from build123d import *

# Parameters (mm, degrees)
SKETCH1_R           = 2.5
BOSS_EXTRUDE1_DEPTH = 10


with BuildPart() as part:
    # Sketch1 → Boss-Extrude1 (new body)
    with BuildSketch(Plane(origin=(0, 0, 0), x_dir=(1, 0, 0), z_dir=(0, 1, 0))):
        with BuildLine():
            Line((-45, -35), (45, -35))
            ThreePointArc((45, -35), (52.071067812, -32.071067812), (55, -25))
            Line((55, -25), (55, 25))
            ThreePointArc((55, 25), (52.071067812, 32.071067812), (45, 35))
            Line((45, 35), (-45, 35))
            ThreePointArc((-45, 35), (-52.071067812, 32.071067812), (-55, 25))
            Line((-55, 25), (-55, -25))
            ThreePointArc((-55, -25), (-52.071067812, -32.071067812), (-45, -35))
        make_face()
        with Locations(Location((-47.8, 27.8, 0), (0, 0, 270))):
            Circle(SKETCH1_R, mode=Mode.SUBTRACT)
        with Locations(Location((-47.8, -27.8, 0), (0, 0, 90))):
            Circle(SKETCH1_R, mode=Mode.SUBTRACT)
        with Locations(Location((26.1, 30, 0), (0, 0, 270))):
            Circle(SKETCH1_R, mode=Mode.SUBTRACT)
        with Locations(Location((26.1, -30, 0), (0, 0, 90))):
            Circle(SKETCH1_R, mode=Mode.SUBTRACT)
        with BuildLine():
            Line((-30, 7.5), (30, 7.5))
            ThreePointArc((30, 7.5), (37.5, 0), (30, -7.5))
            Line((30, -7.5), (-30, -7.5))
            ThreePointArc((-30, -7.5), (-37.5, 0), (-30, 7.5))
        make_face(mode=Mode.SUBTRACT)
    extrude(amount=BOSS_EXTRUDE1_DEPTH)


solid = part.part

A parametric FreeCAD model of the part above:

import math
import FreeCAD as App
import Part
import Sketcher

doc = App.newDocument("Part")
body = doc.addObject("PartDesign::Body", "Body")

# Sketch on XZ plane
sketch1 = body.newObject("Sketcher::SketchObject", "Sketch")
sketch1.AttachmentSupport = (doc.getObject("XZ_Plane"), [""])
sketch1.MapMode = "FlatFace"
sketch1.addGeometry([
    Part.LineSegment(App.Vector(-45, 35, 0), App.Vector(45, 35, 0)),  # 0
    Part.ArcOfCircle(Part.Circle(App.Vector(45, 25, 0), App.Vector(0, 0, 1), 10), math.radians(0), math.radians(90)),  # 1
    Part.LineSegment(App.Vector(55, 25, 0), App.Vector(55, -25, 0)),  # 2
    Part.ArcOfCircle(Part.Circle(App.Vector(45, -25, 0), App.Vector(0, 0, 1), 10), math.radians(-90), math.radians(0)),  # 3
    Part.LineSegment(App.Vector(45, -35, 0), App.Vector(-45, -35, 0)),  # 4
    Part.ArcOfCircle(Part.Circle(App.Vector(-45, -25, 0), App.Vector(0, 0, 1), 10), math.radians(180), math.radians(270)),  # 5
    Part.LineSegment(App.Vector(-55, -25, 0), App.Vector(-55, 25, 0)),  # 6
    Part.ArcOfCircle(Part.Circle(App.Vector(-45, 25, 0), App.Vector(0, 0, 1), 10), math.radians(90), math.radians(180)),  # 7
    Part.Circle(App.Vector(-47.8, 27.8, 0), App.Vector(0, 0, 1), 2.5),  # 8
    Part.Circle(App.Vector(26.1, 30, 0), App.Vector(0, 0, 1), 2.5),  # 9
    Part.Circle(App.Vector(-47.8, -27.8, 0), App.Vector(0, 0, 1), 2.5),  # 10
    Part.ArcOfCircle(Part.Circle(App.Vector(-30, 0, 0), App.Vector(0, 0, 1), 7.5), math.radians(90), math.radians(270)),  # 11
    Part.LineSegment(App.Vector(-30, -7.5, 0), App.Vector(30, -7.5, 0)),  # 12
    Part.ArcOfCircle(Part.Circle(App.Vector(30, 0, 0), App.Vector(0, 0, 1), 7.5), math.radians(-90), math.radians(90)),  # 13
    Part.LineSegment(App.Vector(30, 7.5, 0), App.Vector(-30, 7.5, 0)),  # 14
    Part.Circle(App.Vector(26.1, -30, 0), App.Vector(0, 0, 1), 2.5),  # 15
], False)
sketch1.addConstraint([
    Sketcher.Constraint("Tangent", 0, 2, 1, 2),
    Sketcher.Constraint("Tangent", 1, 1, 2, 1),
    Sketcher.Constraint("Tangent", 2, 2, 3, 2),
    Sketcher.Constraint("Tangent", 3, 1, 4, 1),
    Sketcher.Constraint("Tangent", 4, 2, 5, 2),
    Sketcher.Constraint("Tangent", 5, 1, 6, 1),
    Sketcher.Constraint("Tangent", 6, 2, 7, 2),
    Sketcher.Constraint("Tangent", 7, 1, 0, 1),
    Sketcher.Constraint("Tangent", 11, 2, 12, 1),
    Sketcher.Constraint("Tangent", 12, 2, 13, 1),
    Sketcher.Constraint("Tangent", 13, 2, 14, 1),
    Sketcher.Constraint("Tangent", 14, 2, 11, 1),
    Sketcher.Constraint("Horizontal", 0),
    Sketcher.Constraint("Vertical", 2),
    Sketcher.Constraint("Horizontal", 4),
    Sketcher.Constraint("Vertical", 6),
    Sketcher.Constraint("Horizontal", 12),
    Sketcher.Constraint("Horizontal", 14),
    Sketcher.Constraint("Equal", 1, 3),
    Sketcher.Constraint("Equal", 3, 5),
    Sketcher.Constraint("Equal", 5, 7),
    Sketcher.Constraint("Equal", 8, 9),
    Sketcher.Constraint("Equal", 9, 10),
    Sketcher.Constraint("Equal", 10, 15),
    Sketcher.Constraint("Symmetric", 1, 3, 5, 3, -1, 1),
    Sketcher.Constraint("Symmetric", 11, 3, 13, 3, -1, 1),
    Sketcher.Constraint("Symmetric", 8, 3, 10, 3, -1),
    Sketcher.Constraint("Symmetric", 9, 3, 15, 3, -1),
    Sketcher.Constraint("Diameter", 8, 5.0),
    Sketcher.Constraint("Radius", 1, 10.0),
    Sketcher.Constraint("Radius", 11, 7.5),
    Sketcher.Constraint("DistanceX", 0, 1, 0, 2, 90.0),
    Sketcher.Constraint("DistanceX", 12, 1, 12, 2, 60.0),
    Sketcher.Constraint("DistanceY", 2, 2, 2, 1, 50.0),
    Sketcher.Constraint("DistanceY", -1, 1, 9, 3, 30.0),
    Sketcher.Constraint("DistanceX", 8, 3, -1, 1, 47.8),
    Sketcher.Constraint("DistanceY", -1, 1, 8, 3, 27.8),
    Sketcher.Constraint("DistanceX", -1, 1, 9, 3, 26.1),
])
pad1 = body.newObject("PartDesign::Pad", "Pad")
pad1.Profile = sketch1
pad1.Length = 10
pad1.Reversed = True

doc.recompute()
